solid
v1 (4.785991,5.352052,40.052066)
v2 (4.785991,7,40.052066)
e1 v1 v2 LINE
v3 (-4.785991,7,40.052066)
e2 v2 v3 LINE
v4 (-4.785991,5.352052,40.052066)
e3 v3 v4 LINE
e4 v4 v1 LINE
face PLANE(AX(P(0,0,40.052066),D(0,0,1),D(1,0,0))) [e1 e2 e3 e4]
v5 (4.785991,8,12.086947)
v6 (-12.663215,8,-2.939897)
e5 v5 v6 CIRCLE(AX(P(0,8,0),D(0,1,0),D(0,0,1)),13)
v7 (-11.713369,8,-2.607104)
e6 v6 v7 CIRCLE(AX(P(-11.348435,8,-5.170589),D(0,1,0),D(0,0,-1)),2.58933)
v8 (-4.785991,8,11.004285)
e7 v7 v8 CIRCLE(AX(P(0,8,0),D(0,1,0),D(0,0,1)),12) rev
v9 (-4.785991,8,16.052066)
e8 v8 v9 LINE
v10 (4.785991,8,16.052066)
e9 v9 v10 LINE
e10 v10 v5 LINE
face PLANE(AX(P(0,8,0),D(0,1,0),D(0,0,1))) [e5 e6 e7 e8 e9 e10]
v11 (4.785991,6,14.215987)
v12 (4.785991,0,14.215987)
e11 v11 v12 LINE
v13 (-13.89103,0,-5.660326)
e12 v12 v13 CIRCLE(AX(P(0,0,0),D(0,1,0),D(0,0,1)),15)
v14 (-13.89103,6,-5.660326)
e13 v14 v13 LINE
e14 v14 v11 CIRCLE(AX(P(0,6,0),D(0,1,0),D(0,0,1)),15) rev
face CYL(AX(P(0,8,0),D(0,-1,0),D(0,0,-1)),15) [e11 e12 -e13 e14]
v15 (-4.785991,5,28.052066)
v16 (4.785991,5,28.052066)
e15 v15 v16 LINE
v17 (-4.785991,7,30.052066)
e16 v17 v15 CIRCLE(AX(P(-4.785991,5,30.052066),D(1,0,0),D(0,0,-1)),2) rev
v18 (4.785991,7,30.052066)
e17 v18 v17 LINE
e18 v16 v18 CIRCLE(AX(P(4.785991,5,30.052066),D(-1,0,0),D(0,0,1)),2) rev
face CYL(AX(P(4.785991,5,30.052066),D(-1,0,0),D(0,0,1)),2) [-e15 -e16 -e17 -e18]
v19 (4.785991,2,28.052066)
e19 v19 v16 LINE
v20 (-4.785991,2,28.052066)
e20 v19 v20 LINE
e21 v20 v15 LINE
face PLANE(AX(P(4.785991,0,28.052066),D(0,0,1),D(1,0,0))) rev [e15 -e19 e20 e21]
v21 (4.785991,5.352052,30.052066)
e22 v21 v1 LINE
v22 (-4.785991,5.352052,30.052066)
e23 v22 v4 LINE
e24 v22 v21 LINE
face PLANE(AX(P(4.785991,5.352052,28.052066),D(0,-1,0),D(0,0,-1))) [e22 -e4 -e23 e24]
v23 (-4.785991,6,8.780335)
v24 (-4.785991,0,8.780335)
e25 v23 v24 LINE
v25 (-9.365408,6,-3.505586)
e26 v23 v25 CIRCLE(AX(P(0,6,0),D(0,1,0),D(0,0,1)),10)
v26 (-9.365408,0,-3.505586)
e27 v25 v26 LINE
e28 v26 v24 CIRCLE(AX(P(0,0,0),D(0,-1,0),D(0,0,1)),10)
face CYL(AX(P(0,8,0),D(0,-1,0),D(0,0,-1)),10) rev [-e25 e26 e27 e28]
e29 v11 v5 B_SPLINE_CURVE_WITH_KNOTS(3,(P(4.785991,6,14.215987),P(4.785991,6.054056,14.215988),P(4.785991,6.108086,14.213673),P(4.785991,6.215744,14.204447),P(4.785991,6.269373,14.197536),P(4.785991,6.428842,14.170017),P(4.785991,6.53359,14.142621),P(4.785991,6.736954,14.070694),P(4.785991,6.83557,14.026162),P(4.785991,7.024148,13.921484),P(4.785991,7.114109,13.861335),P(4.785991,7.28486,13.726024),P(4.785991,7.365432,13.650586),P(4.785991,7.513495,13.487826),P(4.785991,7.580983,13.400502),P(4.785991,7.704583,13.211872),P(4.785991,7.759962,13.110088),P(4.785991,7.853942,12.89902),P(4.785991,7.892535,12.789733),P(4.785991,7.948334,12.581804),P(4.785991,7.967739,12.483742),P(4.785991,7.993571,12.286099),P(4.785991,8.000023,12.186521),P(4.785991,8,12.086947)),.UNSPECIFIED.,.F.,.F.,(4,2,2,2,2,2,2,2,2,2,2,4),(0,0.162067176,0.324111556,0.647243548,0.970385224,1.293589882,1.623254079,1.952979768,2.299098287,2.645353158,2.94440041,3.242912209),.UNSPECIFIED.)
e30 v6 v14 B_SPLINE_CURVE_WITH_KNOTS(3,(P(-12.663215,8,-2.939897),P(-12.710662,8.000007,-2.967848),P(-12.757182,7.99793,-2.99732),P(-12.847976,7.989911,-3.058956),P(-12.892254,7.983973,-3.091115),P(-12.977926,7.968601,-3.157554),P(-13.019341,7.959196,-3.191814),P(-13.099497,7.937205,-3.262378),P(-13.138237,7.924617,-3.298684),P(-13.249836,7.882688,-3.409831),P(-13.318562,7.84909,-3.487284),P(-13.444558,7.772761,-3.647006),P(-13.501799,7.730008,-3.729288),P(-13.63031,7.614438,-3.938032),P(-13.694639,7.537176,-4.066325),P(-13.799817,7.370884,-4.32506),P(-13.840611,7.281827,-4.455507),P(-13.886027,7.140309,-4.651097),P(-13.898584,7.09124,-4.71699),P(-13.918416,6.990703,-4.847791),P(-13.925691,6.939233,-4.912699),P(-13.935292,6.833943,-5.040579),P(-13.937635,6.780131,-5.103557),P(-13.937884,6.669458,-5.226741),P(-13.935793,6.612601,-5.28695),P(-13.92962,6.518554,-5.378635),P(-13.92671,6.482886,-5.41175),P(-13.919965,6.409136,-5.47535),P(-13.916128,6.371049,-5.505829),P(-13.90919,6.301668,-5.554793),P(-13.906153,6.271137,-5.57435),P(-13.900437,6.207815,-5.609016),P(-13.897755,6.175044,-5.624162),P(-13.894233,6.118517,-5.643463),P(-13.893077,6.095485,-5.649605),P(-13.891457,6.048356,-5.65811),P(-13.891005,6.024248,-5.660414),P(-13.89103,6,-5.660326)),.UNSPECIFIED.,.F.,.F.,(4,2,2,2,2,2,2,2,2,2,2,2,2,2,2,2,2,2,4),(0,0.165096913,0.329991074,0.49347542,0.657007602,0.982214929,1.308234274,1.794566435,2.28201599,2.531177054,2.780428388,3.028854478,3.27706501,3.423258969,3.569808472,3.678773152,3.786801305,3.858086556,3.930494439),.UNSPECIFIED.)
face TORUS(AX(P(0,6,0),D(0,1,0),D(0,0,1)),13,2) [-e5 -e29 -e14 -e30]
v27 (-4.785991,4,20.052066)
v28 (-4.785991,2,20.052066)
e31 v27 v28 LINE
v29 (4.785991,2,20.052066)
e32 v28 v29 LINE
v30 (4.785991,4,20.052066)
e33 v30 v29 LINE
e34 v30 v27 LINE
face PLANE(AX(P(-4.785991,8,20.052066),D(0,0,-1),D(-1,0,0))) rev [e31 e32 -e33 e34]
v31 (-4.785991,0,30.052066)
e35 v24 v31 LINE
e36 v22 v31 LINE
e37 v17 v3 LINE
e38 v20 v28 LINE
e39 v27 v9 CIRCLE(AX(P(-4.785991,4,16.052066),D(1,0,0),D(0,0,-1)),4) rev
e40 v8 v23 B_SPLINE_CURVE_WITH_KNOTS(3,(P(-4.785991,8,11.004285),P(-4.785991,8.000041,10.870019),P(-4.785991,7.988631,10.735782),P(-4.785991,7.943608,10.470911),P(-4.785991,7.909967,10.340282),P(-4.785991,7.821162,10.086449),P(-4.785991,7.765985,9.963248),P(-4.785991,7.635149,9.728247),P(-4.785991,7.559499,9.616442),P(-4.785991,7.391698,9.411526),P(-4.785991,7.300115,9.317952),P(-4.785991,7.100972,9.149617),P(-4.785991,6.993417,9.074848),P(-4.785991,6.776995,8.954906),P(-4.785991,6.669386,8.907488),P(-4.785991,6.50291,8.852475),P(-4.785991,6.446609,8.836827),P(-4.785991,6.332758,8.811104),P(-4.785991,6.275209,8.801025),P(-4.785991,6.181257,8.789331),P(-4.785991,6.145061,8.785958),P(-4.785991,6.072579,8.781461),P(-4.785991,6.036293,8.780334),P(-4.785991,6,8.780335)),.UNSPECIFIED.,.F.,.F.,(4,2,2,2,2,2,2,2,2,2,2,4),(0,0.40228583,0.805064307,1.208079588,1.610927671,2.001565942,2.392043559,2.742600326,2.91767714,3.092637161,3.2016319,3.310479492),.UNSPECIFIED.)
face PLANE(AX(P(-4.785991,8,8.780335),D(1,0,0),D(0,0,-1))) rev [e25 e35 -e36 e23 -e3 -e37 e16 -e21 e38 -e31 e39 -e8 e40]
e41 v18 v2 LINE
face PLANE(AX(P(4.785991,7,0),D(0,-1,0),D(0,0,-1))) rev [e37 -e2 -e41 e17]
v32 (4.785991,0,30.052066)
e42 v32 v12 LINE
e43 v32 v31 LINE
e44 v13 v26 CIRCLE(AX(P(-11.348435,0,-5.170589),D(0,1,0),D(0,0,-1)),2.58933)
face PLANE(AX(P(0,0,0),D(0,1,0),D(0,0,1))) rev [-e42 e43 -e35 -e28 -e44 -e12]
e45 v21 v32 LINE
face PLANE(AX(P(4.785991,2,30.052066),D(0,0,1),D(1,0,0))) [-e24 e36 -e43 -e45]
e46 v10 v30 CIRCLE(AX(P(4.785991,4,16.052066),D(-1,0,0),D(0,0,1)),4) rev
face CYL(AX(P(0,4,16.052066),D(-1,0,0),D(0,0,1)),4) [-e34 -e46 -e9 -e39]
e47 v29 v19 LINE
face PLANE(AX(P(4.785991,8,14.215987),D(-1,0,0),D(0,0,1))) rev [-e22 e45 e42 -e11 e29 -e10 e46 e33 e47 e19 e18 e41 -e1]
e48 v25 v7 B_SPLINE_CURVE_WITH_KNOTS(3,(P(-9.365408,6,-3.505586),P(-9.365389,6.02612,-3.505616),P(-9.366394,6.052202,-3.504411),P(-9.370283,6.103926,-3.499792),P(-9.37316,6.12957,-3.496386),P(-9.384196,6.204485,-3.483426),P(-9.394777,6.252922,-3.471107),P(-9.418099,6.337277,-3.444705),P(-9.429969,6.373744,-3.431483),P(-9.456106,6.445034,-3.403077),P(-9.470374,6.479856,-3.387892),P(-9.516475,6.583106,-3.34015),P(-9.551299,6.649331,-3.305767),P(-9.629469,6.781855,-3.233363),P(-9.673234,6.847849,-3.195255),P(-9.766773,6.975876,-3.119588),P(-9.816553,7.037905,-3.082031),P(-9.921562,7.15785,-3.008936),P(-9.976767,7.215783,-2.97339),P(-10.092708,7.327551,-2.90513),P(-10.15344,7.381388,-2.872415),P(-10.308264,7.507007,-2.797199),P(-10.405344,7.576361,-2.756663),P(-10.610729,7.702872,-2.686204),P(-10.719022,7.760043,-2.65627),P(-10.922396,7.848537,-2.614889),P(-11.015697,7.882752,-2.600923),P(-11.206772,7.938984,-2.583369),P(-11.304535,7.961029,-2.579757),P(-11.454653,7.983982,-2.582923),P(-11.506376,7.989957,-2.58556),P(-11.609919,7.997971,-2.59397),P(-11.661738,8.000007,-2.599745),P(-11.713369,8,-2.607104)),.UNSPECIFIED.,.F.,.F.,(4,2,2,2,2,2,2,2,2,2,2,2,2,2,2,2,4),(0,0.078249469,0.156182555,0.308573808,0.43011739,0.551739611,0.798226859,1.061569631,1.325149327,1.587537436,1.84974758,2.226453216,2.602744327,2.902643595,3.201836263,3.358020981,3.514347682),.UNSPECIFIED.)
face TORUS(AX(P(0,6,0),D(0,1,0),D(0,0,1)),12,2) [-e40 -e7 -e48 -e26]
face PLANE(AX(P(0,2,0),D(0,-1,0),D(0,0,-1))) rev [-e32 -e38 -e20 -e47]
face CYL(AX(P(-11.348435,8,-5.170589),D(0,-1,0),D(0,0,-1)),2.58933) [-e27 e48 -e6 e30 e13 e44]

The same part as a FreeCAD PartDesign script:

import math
import FreeCAD as App
import Part
import Sketcher

V = App.Vector


def edges_at(feature, points):
    """Names of the edges that pass closest to the given points."""
    edges = feature.Shape.Edges
    near = lambda p: min(range(len(edges)), key=lambda i: edges[i].distToShape(Part.Vertex(*p))[0])
    return sorted({f"Edge{near(p) + 1}" for p in points})

doc = App.newDocument("Part")
params = doc.addObject("Spreadsheet::Sheet", "Params")
for row, (alias, value) in enumerate([
    ("sketch1_radius", "15 mm"),
    ("sketch1_radius2", "10 mm"),
    ("pad1_length", "8 mm"),
    ("sketch2_height", "10 mm"),
    ("pad2_length", "2 mm"),
    ("sketch3_width", "5 mm"),
    ("sketch3_height", "2 mm"),
    ("sketch3_height2", "4 mm"),
    ("pad3_length", "9.571982 mm"),
    ("fillet_radius", "2 mm"),
    ("fillet2_radius", "4 mm"),
    ("fillet3_radius", "2 mm"),
    ("pad4_length", "6 mm"),
], start=1):
    params.set(f"A{row}", alias)
    params.set(f"B{row}", "=" + value)
    params.setAlias(f"B{row}", alias)

body = doc.addObject("PartDesign::Body", "Body")

# Sketch on XZ plane
sketch1 = doc.addObject("Sketcher::SketchObject", "Sketch")
body.addObject(sketch1)
sketch1.AttachmentSupport = (doc.XZ_Plane, [""])
sketch1.MapMode = "FlatFace"
sketch1.addGeometry([
    Part.LineSegment(V(-4.8, 8.8, 0), V(-4.8, 20.1, 0)),  # 0
    Part.LineSegment(V(-4.8, 20.1, 0), V(4.8, 20.1, 0)),  # 1
    Part.LineSegment(V(4.8, 20.1, 0), V(4.8, 14.2, 0)),  # 2
    Part.ArcOfCircle(Part.Circle(V(0, 0, 0), V(0, 0, 1), 15), math.radians(-158), math.radians(71)),  # 3
    Part.ArcOfCircle(Part.Circle(V(-11.3, -5.2, 0), V(0, 0, 1), 2.6), math.radians(40), math.radians(191)),  # 4
    Part.ArcOfCircle(Part.Circle(V(0, 0, 0), V(0, 0, 1), 10), math.radians(-159), math.radians(119)),  # 5
], False)
sketch1.addConstraint([
    Sketcher.Constraint("Coincident", 0, 2, 1, 1),
    Sketcher.Constraint("Coincident", 1, 2, 2, 1),
    Sketcher.Constraint("Coincident", 2, 2, 3, 2),
    Sketcher.Constraint("Coincident", 3, 1, 4, 2),
    Sketcher.Constraint("Coincident", 4, 1, 5, 1),
    Sketcher.Constraint("Coincident", 5, 2, 0, 1),
    Sketcher.Constraint("Vertical", 0),
    Sketcher.Constraint("Horizontal", 1),
    Sketcher.Constraint("Vertical", 2),
    Sketcher.Constraint("Coincident", 3, 3, -1, 1),
    Sketcher.Constraint("Coincident", 5, 3, -1, 1),
    Sketcher.Constraint("Radius", 3, 15.0),
    Sketcher.Constraint("Radius", 5, 10.0),
    Sketcher.Constraint("Radius", 4, 2.58933),
    Sketcher.Constraint("DistanceY", 0, 1, 0, 2, 11.27173),
    Sketcher.Constraint("DistanceY", 2, 2, 2, 1, 5.836079),
    Sketcher.Constraint("DistanceX", 4, 1, 2, 2, 14.151399),
    Sketcher.Constraint("DistanceX", 1, 1, 1, 2, 9.571982),
    Sketcher.Constraint("DistanceY", 4, 3, -1, 1, 5.170589),
])
sketch1.setExpression("Constraints[11]", "Params.sketch1_radius")
sketch1.setExpression("Constraints[12]", "Params.sketch1_radius2")
pad1 = doc.addObject("PartDesign::Pad", "Pad")
body.addObject(pad1)
pad1.Profile = sketch1
pad1.setExpression("Length", "Params.pad1_length")
pad1.Reversed = True

# Sketch on XZ plane
sketch2 = doc.addObject("Sketcher::SketchObject", "Sketch001")
body.addObject(sketch2)
sketch2.AttachmentSupport = (doc.XZ_Plane, [""])
sketch2.MapMode = "FlatFace"
sketch2.addGeometry([
    Part.LineSegment(V(-5, 30, 0), V(-5, 20, 0)),
    Part.LineSegment(V(-5, 20, 0), V(5, 20, 0)),
    Part.LineSegment(V(5, 20, 0), V(5, 30, 0)),
    Part.LineSegment(V(5, 30, 0), V(-5, 30, 0)),
], False)
sketch2.addConstraint([
    Sketcher.Constraint("Coincident", 0, 2, 1, 1),
    Sketcher.Constraint("Coincident", 1, 2, 2, 1),
    Sketcher.Constraint("Coincident", 2, 2, 3, 1),
    Sketcher.Constraint("Coincident", 3, 2, 0, 1),
    Sketcher.Constraint("Vertical", 0),
    Sketcher.Constraint("Horizontal", 1),
    Sketcher.Constraint("Vertical", 2),
    Sketcher.Constraint("Horizontal", 3),
    Sketcher.Constraint("DistanceY", 0, 2, 0, 1, 10.0),
    Sketcher.Constraint("DistanceX", 1, 1, 1, 2, 9.571982),
    Sketcher.Constraint("DistanceX", 0, 2, -1, 1, 4.785991),
    Sketcher.Constraint("DistanceY", -1, 1, 0, 2, 20.052066),
])
sketch2.setExpression("Constraints[8]", "Params.sketch2_height")
pad2 = doc.addObject("PartDesign::Pad", "Pad001")
body.addObject(pad2)
pad2.Profile = sketch2
pad2.setExpression("Length", "Params.pad2_length")
pad2.Reversed = True

# Sketch on YZ plane
sketch3 = doc.addObject("Sketcher::SketchObject", "Sketch002")
body.addObject(sketch3)
sketch3.AttachmentSupport = (doc.YZ_Plane, [""])
sketch3.MapMode = "FlatFace"
sketch3.AttachmentOffset = App.Placement(V(0, 0, -4.785991), App.Rotation())
sketch3.addGeometry([
    Part.LineSegment(V(2, 28.1, 0), V(2, 30.1, 0)),  # 0
    Part.LineSegment(V(2, 30.1, 0), V(5.4, 30.1, 0)),  # 1
    Part.LineSegment(V(5.4, 30.1, 0), V(5.4, 34.1, 0)),  # 2
    Part.LineSegment(V(5.4, 34.1, 0), V(7, 34.1, 0)),  # 3
    Part.LineSegment(V(7, 34.1, 0), V(7, 28.1, 0)),  # 4
    Part.LineSegment(V(7, 28.1, 0), V(2, 28.1, 0)),  # 5
], False)
sketch3.addConstraint([
    Sketcher.Constraint("Coincident", 0, 2, 1, 1),
    Sketcher.Constraint("Coincident", 1, 2, 2, 1),
    Sketcher.Constraint("Coincident", 2, 2, 3, 1),
    Sketcher.Constraint("Coincident", 3, 2, 4, 1),
    Sketcher.Constraint("Coincident", 4, 2, 5, 1),
    Sketcher.Constraint("Coincident", 5, 2, 0, 1),
    Sketcher.Constraint("Vertical", 0),
    Sketcher.Constraint("Horizontal", 1),
    Sketcher.Constraint("Vertical", 2),
    Sketcher.Constraint("Horizontal", 3),
    Sketcher.Constraint("Vertical", 4),
    Sketcher.Constraint("Horizontal", 5),
    Sketcher.Constraint("DistanceX", 5, 2, 5, 1, 5.0),
    Sketcher.Constraint("DistanceY", 0, 1, 0, 2, 2.0),
    Sketcher.Constraint("DistanceY", 2, 1, 2, 2, 4.0),
    Sketcher.Constraint("DistanceX", -1, 1, 0, 2, 2.0),
    Sketcher.Constraint("DistanceX", 1, 1, 1, 2, 3.352052),
    Sketcher.Constraint("DistanceY", -1, 1, 0, 2, 30.052066),
])
sketch3.setExpression("Constraints[12]", "Params.sketch3_width")
sketch3.setExpression("Constraints[13]", "Params.sketch3_height")
sketch3.setExpression("Constraints[14]", "Params.sketch3_height2")
pad3 = doc.addObject("PartDesign::Pad", "Pad002")
body.addObject(pad3)
pad3.Profile = sketch3
pad3.setExpression("Length", "Params.pad3_length")
doc.recompute()

fillet = doc.addObject("PartDesign::Fillet", "Fillet")
body.addObject(fillet)
fillet.Base = (pad3, edges_at(pad3, [(0, 7, 28.052)]))
fillet.setExpression("Radius", "Params.fillet_radius")
doc.recompute()

fillet2 = doc.addObject("PartDesign::Fillet", "Fillet001")
body.addObject(fillet2)
fillet2.Base = (fillet, edges_at(fillet, [(0, 8, 20.052)]))
fillet2.setExpression("Radius", "Params.fillet2_radius")
doc.recompute()

fillet3 = doc.addObject("PartDesign::Fillet", "Fillet002")
body.addObject(fillet3)
fillet3.Base = (fillet2, edges_at(fillet2, [(9.37, 8, -3.493), (10.931, 8, -10.272)]))
fillet3.setExpression("Radius", "Params.fillet3_radius")

# Sketch on XY plane
sketch4 = doc.addObject("Sketcher::SketchObject", "Sketch003")
body.addObject(sketch4)
sketch4.AttachmentSupport = (doc.XY_Plane, [""])
sketch4.MapMode = "FlatFace"
sketch4.AttachmentOffset = App.Placement(V(0, 0, 34.052066), App.Rotation())
sketch4.addGeometry([
    Part.LineSegment(V(-4.8, 7, 0), V(-4.8, 5.4, 0)),
    Part.LineSegment(V(-4.8, 5.4, 0), V(4.8, 5.4, 0)),
    Part.LineSegment(V(4.8, 5.4, 0), V(4.8, 7, 0)),
    Part.LineSegment(V(4.8, 7, 0), V(-4.8, 7, 0)),
], False)
sketch4.addConstraint([
    Sketcher.Constraint("Coincident", 0, 2, 1, 1),
    Sketcher.Constraint("Coincident", 1, 2, 2, 1),
    Sketcher.Constraint("Coincident", 2, 2, 3, 1),
    Sketcher.Constraint("Coincident", 3, 2, 0, 1),
    Sketcher.Constraint("Vertical", 0),
    Sketcher.Constraint("Horizontal", 1),
    Sketcher.Constraint("Vertical", 2),
    Sketcher.Constraint("Horizontal", 3),
    Sketcher.Constraint("DistanceY", -1, 1, 2, 2, 7.0),
    Sketcher.Constraint("DistanceY", 0, 2, 0, 1, 1.647948),
    Sketcher.Constraint("DistanceX", 1, 1, 1, 2, 9.571982),
    Sketcher.Constraint("DistanceX", 0, 2, -1, 1, 4.785991),
])
pad4 = doc.addObject("PartDesign::Pad", "Pad003")
body.addObject(pad4)
pad4.Profile = sketch4
pad4.setExpression("Length", "Params.pad4_length")

doc.recompute()
